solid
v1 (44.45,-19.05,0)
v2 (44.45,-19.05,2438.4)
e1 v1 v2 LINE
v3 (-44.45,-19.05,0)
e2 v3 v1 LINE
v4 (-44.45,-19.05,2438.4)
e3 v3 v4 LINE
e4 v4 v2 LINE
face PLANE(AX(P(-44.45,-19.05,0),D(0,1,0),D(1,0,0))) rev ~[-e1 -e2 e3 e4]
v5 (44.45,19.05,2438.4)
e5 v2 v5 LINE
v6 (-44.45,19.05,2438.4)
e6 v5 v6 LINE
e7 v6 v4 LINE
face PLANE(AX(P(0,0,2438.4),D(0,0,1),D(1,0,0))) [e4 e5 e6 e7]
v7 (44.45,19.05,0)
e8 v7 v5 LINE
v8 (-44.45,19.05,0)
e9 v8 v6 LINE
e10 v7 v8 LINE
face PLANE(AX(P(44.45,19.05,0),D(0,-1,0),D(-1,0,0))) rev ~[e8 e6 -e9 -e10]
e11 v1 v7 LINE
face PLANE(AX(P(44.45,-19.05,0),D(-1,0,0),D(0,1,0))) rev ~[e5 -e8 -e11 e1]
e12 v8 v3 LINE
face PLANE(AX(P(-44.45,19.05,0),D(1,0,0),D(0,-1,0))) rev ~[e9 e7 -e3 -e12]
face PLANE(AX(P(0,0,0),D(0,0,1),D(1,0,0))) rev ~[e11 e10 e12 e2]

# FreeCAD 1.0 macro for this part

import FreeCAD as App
import Part
import Sketcher

V = App.Vector
Q = App.Units.Quantity


def add_polygon(sketch, points):
    """Adds a closed chain of lines whose ends are joined by coincident constraints."""
    first, n = sketch.GeometryCount, len(points)
    for a, b in zip(points, points[1:] + points[:1]):
        sketch.addGeometry(Part.LineSegment(App.Vector(*a, 0), App.Vector(*b, 0)), False)
    for i in range(n):
        sketch.addConstraint(Sketcher.Constraint("Coincident", first + i, 2, first + (i + 1) % n, 1))

doc = App.newDocument("Part")
body = doc.addObject("PartDesign::Body", "Body")

sketch1 = body.newObject("Sketcher::SketchObject", "Sketch")
sketch1.AttachmentSupport = (doc.getObject("XY_Plane"), [""])
sketch1.MapMode = "FlatFace"
add_polygon(sketch1, [(-44, 19), (-44, -19), (44, -19), (44, 19)])
sketch1.addConstraint(Sketcher.Constraint("Vertical", 0))
sketch1.addConstraint(Sketcher.Constraint("Horizontal", 1))
sketch1.addConstraint(Sketcher.Constraint("Vertical", 2))
sketch1.addConstraint(Sketcher.Constraint("Horizontal", 3))
sketch1.addConstraint(Sketcher.Constraint("Symmetric", 0, 2, 2, 2, -1, 1))
sketch1.addConstraint(Sketcher.Constraint("DistanceX", 1, 1, 1, 2, Q("3.5 in")))
sketch1.addConstraint(Sketcher.Constraint("DistanceY", 0, 2, 0, 1, Q("1.5 in")))
pad1 = body.newObject("PartDesign::Pad", "Pad")
pad1.Profile = sketch1
pad1.Length = Q("96 in")

doc.recompute()
